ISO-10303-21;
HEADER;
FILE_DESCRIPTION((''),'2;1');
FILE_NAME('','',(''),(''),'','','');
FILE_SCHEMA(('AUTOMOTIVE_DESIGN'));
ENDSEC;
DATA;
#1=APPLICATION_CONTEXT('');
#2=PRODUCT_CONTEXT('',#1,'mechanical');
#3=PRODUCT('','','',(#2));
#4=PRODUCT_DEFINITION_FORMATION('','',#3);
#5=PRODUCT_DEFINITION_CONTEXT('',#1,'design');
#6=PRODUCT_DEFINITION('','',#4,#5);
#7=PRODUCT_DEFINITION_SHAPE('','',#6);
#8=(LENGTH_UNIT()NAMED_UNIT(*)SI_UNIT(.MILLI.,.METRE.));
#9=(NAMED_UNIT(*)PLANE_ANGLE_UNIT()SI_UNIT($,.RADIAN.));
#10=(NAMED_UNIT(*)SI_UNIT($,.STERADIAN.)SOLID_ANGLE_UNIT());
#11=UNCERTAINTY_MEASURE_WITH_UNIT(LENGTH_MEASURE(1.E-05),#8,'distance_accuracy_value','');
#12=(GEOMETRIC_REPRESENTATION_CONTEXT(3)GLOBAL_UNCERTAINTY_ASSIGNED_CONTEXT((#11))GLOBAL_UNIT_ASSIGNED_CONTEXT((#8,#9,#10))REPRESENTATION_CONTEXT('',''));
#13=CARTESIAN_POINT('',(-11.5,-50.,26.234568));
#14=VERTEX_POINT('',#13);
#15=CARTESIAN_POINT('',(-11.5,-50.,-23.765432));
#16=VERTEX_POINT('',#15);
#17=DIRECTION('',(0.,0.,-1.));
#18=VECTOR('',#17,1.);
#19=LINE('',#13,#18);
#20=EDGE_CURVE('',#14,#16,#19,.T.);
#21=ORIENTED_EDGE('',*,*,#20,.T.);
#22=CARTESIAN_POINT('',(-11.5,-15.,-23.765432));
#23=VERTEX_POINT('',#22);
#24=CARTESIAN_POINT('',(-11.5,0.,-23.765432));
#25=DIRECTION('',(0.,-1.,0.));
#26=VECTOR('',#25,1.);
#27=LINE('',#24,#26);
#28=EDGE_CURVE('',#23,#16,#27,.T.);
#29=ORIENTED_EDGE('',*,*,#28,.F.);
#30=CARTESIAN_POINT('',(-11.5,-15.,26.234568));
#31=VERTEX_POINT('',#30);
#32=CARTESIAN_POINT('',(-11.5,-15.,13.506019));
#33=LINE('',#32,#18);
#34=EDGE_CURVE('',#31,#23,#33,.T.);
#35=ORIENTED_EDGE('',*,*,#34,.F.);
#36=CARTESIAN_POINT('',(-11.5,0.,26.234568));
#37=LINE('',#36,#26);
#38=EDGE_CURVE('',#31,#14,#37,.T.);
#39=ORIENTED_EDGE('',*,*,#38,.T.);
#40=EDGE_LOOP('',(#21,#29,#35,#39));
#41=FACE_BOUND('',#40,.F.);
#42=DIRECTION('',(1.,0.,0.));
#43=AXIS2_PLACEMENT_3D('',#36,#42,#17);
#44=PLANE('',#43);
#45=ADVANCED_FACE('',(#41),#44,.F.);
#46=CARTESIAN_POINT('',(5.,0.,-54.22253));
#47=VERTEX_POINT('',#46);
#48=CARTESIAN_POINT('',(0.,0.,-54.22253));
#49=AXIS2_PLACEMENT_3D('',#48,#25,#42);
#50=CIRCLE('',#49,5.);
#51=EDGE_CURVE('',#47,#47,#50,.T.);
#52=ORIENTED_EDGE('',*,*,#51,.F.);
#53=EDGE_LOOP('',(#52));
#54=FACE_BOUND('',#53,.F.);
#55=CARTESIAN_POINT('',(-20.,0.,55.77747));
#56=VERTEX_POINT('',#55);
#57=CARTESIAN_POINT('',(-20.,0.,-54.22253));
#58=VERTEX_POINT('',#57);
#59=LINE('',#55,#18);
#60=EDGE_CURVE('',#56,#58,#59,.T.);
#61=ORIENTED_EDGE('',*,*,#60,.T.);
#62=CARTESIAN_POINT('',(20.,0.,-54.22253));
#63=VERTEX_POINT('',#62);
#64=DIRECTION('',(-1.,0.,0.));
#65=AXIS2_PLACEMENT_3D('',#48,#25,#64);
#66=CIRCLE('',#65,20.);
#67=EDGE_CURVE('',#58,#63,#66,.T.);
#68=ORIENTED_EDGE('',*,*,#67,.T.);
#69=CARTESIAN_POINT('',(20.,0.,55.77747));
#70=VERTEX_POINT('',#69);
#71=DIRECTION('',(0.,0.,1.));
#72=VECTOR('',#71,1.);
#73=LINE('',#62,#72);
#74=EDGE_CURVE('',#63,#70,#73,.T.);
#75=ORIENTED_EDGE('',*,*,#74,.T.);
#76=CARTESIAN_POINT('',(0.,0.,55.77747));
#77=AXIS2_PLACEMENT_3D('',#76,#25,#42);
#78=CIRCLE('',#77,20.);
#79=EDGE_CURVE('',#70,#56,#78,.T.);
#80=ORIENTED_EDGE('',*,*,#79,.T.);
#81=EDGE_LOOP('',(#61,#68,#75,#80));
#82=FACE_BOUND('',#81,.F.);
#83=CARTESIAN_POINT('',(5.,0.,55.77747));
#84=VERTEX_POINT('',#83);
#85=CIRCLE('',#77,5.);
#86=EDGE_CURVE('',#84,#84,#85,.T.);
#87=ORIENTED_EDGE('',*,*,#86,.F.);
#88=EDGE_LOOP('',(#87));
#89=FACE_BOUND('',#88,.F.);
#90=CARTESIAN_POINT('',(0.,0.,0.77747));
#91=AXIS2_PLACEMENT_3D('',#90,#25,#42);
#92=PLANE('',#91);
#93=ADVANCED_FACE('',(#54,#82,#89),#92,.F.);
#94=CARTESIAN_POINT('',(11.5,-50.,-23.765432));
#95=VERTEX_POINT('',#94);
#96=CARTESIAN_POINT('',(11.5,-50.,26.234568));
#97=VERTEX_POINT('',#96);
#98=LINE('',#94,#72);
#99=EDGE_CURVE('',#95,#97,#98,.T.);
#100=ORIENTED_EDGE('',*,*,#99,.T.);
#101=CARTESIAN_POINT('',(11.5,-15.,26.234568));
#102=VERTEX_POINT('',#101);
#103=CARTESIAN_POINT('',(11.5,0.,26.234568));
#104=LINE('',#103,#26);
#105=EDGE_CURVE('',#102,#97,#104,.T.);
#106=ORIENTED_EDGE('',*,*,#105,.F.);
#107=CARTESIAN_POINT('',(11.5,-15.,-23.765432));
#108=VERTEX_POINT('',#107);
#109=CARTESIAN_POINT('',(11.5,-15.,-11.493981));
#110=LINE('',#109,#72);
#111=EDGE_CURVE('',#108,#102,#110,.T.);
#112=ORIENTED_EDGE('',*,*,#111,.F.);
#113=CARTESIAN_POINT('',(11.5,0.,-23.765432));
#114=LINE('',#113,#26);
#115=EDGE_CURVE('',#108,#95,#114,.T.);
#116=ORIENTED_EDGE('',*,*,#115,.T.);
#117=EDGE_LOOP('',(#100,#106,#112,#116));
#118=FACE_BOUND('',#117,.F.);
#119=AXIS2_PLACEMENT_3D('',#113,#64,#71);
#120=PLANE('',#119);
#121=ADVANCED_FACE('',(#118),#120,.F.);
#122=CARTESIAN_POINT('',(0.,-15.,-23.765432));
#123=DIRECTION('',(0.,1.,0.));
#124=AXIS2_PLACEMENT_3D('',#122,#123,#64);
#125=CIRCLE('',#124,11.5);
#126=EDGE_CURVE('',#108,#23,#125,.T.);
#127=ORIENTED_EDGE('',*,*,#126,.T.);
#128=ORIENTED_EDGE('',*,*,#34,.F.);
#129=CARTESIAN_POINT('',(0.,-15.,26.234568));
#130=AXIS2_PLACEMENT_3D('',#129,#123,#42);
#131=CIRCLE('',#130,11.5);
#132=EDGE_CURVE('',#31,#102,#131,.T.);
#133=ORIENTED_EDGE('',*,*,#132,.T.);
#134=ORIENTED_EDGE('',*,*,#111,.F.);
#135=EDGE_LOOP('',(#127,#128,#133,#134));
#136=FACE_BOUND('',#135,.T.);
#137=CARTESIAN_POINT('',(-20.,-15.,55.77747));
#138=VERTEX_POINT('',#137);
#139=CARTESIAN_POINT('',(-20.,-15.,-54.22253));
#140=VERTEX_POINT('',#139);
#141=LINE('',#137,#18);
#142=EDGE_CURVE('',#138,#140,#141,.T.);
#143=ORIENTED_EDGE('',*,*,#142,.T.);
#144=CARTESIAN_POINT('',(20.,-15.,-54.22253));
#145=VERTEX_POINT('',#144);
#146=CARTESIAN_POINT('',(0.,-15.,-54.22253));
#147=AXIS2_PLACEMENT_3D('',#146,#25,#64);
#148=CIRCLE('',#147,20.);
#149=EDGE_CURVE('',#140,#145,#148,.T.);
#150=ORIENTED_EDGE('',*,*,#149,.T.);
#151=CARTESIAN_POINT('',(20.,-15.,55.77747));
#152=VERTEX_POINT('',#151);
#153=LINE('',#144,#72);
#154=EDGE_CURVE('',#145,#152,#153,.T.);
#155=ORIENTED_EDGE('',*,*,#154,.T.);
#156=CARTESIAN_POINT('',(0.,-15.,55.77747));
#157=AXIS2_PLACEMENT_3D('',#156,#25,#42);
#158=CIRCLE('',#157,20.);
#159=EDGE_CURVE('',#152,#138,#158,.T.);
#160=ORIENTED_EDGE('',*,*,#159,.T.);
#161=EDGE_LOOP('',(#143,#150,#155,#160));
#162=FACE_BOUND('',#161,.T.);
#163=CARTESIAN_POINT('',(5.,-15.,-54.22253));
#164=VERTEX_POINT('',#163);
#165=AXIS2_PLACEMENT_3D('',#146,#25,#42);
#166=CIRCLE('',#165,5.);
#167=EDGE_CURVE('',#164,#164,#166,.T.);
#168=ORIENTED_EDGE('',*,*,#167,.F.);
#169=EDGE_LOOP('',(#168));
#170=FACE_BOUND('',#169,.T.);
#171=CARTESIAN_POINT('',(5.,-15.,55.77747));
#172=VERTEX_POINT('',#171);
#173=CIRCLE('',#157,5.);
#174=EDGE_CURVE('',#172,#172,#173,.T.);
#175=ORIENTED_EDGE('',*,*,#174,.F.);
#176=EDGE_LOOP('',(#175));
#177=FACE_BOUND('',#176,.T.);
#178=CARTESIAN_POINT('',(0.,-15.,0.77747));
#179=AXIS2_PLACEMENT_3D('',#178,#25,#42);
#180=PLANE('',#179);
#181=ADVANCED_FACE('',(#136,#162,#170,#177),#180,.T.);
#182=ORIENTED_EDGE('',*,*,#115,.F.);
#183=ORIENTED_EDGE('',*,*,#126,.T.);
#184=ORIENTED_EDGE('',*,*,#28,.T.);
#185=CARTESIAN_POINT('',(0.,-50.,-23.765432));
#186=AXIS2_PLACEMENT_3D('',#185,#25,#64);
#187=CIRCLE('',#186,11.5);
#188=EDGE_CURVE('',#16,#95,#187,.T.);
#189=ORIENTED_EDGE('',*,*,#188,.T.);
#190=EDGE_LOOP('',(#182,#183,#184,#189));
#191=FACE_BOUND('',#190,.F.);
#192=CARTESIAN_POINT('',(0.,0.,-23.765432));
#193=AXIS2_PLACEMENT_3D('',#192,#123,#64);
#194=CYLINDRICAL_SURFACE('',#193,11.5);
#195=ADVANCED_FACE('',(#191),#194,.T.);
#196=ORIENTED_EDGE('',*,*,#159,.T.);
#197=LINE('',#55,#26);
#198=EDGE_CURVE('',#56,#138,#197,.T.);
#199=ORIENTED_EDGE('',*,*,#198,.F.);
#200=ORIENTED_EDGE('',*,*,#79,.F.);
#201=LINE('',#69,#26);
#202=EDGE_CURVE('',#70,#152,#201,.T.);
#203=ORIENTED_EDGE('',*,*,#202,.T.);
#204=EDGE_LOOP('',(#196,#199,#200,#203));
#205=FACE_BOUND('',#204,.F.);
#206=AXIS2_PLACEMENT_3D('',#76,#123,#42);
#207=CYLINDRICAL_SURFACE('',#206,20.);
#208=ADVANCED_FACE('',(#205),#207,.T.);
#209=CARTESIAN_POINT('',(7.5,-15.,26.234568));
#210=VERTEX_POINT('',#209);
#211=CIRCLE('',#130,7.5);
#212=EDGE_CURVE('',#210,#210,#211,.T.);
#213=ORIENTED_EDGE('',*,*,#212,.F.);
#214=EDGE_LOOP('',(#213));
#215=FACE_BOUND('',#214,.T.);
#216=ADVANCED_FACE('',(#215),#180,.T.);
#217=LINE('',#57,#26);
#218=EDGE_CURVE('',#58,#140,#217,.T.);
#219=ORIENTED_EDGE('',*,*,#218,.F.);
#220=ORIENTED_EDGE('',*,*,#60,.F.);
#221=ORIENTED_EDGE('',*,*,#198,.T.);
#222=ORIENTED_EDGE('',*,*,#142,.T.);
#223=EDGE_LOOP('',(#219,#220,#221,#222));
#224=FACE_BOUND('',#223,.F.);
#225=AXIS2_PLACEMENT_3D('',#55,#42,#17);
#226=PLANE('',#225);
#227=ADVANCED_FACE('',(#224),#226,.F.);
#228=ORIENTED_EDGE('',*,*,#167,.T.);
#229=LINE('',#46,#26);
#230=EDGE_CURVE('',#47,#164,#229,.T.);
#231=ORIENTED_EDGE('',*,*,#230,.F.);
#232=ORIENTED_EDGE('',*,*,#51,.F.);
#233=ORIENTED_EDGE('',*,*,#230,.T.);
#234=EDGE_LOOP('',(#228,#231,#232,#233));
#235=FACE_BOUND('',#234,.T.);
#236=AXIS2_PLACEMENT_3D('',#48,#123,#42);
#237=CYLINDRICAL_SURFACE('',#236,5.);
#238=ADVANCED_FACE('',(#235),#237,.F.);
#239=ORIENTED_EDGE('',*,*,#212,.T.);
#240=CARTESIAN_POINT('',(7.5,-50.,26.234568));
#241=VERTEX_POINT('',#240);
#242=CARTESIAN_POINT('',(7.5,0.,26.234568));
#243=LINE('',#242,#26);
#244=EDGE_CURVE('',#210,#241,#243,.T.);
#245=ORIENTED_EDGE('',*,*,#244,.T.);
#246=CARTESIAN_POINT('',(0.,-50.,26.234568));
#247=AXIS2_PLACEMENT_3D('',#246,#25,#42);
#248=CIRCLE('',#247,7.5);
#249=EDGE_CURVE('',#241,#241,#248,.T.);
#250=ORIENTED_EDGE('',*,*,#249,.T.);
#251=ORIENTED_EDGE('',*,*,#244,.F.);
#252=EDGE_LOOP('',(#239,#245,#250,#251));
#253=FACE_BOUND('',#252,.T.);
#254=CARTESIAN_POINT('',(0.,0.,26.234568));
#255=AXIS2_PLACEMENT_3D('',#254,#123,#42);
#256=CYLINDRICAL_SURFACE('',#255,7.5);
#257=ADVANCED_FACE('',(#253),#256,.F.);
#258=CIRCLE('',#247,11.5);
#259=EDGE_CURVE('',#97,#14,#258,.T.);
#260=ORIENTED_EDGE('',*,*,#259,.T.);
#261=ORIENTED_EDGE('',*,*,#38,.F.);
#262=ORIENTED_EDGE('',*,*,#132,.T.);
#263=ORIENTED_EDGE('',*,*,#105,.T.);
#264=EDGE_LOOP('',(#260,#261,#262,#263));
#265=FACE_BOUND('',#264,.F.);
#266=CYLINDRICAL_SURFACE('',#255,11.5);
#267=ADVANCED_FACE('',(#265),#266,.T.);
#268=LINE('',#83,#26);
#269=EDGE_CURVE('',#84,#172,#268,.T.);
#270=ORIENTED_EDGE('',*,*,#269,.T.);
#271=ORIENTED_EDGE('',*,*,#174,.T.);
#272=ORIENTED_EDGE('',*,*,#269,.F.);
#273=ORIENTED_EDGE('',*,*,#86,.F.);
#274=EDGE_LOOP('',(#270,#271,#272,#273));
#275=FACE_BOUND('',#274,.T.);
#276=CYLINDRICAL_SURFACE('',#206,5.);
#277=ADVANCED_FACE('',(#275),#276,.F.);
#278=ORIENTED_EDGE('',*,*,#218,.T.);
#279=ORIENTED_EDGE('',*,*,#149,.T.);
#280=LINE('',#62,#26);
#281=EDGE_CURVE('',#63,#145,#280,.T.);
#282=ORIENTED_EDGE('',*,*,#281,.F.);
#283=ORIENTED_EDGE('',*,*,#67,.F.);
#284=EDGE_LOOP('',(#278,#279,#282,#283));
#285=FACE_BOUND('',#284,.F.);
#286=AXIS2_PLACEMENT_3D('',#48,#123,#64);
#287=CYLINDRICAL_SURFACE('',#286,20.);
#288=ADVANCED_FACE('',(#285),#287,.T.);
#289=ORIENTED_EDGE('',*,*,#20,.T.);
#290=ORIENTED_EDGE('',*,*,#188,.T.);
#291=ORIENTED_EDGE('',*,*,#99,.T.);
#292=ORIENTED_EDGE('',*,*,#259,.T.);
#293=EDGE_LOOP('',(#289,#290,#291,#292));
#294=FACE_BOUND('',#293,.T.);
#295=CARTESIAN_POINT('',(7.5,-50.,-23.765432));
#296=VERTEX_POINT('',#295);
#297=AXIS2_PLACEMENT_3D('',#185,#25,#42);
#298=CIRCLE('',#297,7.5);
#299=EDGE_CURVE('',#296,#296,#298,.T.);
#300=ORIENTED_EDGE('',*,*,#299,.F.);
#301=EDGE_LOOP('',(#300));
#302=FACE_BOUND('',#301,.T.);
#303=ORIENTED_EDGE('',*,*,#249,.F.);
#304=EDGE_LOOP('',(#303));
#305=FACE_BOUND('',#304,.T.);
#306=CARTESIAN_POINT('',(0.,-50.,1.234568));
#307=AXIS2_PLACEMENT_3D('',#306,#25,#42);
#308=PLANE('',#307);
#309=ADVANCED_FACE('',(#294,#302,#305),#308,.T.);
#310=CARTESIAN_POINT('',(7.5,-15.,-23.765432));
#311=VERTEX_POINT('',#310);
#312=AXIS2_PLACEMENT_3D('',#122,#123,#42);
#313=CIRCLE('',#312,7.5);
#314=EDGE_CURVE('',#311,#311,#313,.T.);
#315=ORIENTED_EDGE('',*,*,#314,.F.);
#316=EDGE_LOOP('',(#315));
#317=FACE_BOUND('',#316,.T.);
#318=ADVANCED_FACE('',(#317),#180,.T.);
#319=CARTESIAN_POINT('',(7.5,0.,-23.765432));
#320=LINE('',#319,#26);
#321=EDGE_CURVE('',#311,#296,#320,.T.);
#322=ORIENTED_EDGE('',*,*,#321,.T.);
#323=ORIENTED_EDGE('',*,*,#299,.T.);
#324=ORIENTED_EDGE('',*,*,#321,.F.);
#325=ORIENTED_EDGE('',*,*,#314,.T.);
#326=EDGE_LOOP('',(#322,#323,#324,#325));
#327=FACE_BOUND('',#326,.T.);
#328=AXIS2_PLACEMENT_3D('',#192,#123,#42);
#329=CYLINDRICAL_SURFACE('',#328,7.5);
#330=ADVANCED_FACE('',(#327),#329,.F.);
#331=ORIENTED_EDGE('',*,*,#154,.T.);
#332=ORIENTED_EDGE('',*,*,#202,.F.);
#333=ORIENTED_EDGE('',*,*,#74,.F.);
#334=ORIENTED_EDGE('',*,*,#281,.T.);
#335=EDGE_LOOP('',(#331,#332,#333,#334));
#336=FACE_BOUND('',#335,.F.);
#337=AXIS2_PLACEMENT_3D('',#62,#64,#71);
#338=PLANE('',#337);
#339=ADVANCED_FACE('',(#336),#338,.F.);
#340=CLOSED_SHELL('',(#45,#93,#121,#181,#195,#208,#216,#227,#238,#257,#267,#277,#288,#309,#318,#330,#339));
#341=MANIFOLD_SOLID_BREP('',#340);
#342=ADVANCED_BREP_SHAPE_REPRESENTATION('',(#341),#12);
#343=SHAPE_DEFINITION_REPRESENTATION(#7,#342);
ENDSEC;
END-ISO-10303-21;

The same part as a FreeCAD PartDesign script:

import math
import FreeCAD as App
import Part
import Sketcher

V = App.Vector
Q = App.Units.Quantity

doc = App.newDocument("Part")
body = doc.addObject("PartDesign::Body", "Body")

# Sketch on XZ plane
sketch1 = body.newObject("Sketcher::SketchObject", "Sketch")
sketch1.AttachmentSupport = (doc.getObject("XZ_Plane"), [""])
sketch1.MapMode = "FlatFace"
sketch1.addGeometry(Part.LineSegment(V(11.5, -23.765432, 0), V(11.5, 26.234568, 0)), False)
sketch1.addGeometry(Part.ArcOfCircle(Part.Circle(V(0, 26.234568, 0), V(0, 0, 1), 11.5), math.radians(0), math.radians(180)), False)
sketch1.addGeometry(Part.LineSegment(V(-11.5, 26.234568, 0), V(-11.5, -23.765432, 0)), False)
sketch1.addGeometry(Part.ArcOfCircle(Part.Circle(V(0, -23.765432, 0), V(0, 0, 1), 11.5), math.radians(180), math.radians(360)), False)
sketch1.addGeometry(Part.Circle(V(0, -23.765432, 0), V(0, 0, 1), 7.5), False)
sketch1.addGeometry(Part.Circle(V(0, 26.234568, 0), V(0, 0, 1), 7.5), False)
sketch1.addConstraint(Sketcher.Constraint("Tangent", 0, 2, 1, 1))
sketch1.addConstraint(Sketcher.Constraint("Tangent", 1, 2, 2, 1))
sketch1.addConstraint(Sketcher.Constraint("Tangent", 2, 2, 3, 1))
sketch1.addConstraint(Sketcher.Constraint("Tangent", 3, 2, 0, 1))
sketch1.addConstraint(Sketcher.Constraint("Vertical", 0))
sketch1.addConstraint(Sketcher.Constraint("Vertical", 2))
sketch1.addConstraint(Sketcher.Constraint("Coincident", 4, 3, 3, 3))
sketch1.addConstraint(Sketcher.Constraint("Coincident", 5, 3, 1, 3))
sketch1.addConstraint(Sketcher.Constraint("Equal", 4, 5))
sketch1.addConstraint(Sketcher.Constraint("PointOnObject", 1, 3, -2))
sketch1.addConstraint(Sketcher.Constraint("Diameter", 4, Q("15 mm")))
sketch1.addConstraint(Sketcher.Constraint("Radius", 1, Q("11.5 mm")))
sketch1.addConstraint(Sketcher.Constraint("DistanceY", 0, 1, 0, 2, Q("50 mm")))
sketch1.addConstraint(Sketcher.Constraint("DistanceY", -1, 1, 1, 3, Q("26.234568 mm")))
pad1 = body.newObject("PartDesign::Pad", "Pad")
pad1.Profile = sketch1
pad1.Length = 50

# Sketch on XZ plane
sketch2 = body.newObject("Sketcher::SketchObject", "Sketch001")
sketch2.AttachmentSupport = (doc.getObject("XZ_Plane"), [""])
sketch2.MapMode = "FlatFace"
sketch2.addGeometry(Part.LineSegment(V(-20, 55.77747, 0), V(-20, -54.22253, 0)), False)
sketch2.addGeometry(Part.ArcOfCircle(Part.Circle(V(0, -54.22253, 0), V(0, 0, 1), 20), math.radians(180), math.radians(360)), False)
sketch2.addGeometry(Part.LineSegment(V(20, -54.22253, 0), V(20, 55.77747, 0)), False)
sketch2.addGeometry(Part.ArcOfCircle(Part.Circle(V(0, 55.77747, 0), V(0, 0, 1), 20), math.radians(0), math.radians(180)), False)
sketch2.addGeometry(Part.Circle(V(0, -54.22253, 0), V(0, 0, 1), 5), False)
sketch2.addGeometry(Part.Circle(V(0, 55.77747, 0), V(0, 0, 1), 5), False)
sketch2.addConstraint(Sketcher.Constraint("Tangent", 0, 2, 1, 1))
sketch2.addConstraint(Sketcher.Constraint("Tangent", 1, 2, 2, 1))
sketch2.addConstraint(Sketcher.Constraint("Tangent", 2, 2, 3, 1))
sketch2.addConstraint(Sketcher.Constraint("Tangent", 3, 2, 0, 1))
sketch2.addConstraint(Sketcher.Constraint("Vertical", 0))
sketch2.addConstraint(Sketcher.Constraint("Vertical", 2))
sketch2.addConstraint(Sketcher.Constraint("Coincident", 4, 3, 1, 3))
sketch2.addConstraint(Sketcher.Constraint("Coincident", 5, 3, 3, 3))
sketch2.addConstraint(Sketcher.Constraint("Equal", 4, 5))
sketch2.addConstraint(Sketcher.Constraint("PointOnObject", 1, 3, -2))
sketch2.addConstraint(Sketcher.Constraint("Diameter", 4, Q("10 mm")))
sketch2.addConstraint(Sketcher.Constraint("Radius", 1, Q("20 mm")))
sketch2.addConstraint(Sketcher.Constraint("DistanceY", 0, 2, 0, 1, Q("110 mm")))
sketch2.addConstraint(Sketcher.Constraint("DistanceY", 1, 3, -1, 1, Q("54.22253 mm")))
pad2 = body.newObject("PartDesign::Pad", "Pad001")
pad2.Profile = sketch2
pad2.Length = 15

doc.recompute()
